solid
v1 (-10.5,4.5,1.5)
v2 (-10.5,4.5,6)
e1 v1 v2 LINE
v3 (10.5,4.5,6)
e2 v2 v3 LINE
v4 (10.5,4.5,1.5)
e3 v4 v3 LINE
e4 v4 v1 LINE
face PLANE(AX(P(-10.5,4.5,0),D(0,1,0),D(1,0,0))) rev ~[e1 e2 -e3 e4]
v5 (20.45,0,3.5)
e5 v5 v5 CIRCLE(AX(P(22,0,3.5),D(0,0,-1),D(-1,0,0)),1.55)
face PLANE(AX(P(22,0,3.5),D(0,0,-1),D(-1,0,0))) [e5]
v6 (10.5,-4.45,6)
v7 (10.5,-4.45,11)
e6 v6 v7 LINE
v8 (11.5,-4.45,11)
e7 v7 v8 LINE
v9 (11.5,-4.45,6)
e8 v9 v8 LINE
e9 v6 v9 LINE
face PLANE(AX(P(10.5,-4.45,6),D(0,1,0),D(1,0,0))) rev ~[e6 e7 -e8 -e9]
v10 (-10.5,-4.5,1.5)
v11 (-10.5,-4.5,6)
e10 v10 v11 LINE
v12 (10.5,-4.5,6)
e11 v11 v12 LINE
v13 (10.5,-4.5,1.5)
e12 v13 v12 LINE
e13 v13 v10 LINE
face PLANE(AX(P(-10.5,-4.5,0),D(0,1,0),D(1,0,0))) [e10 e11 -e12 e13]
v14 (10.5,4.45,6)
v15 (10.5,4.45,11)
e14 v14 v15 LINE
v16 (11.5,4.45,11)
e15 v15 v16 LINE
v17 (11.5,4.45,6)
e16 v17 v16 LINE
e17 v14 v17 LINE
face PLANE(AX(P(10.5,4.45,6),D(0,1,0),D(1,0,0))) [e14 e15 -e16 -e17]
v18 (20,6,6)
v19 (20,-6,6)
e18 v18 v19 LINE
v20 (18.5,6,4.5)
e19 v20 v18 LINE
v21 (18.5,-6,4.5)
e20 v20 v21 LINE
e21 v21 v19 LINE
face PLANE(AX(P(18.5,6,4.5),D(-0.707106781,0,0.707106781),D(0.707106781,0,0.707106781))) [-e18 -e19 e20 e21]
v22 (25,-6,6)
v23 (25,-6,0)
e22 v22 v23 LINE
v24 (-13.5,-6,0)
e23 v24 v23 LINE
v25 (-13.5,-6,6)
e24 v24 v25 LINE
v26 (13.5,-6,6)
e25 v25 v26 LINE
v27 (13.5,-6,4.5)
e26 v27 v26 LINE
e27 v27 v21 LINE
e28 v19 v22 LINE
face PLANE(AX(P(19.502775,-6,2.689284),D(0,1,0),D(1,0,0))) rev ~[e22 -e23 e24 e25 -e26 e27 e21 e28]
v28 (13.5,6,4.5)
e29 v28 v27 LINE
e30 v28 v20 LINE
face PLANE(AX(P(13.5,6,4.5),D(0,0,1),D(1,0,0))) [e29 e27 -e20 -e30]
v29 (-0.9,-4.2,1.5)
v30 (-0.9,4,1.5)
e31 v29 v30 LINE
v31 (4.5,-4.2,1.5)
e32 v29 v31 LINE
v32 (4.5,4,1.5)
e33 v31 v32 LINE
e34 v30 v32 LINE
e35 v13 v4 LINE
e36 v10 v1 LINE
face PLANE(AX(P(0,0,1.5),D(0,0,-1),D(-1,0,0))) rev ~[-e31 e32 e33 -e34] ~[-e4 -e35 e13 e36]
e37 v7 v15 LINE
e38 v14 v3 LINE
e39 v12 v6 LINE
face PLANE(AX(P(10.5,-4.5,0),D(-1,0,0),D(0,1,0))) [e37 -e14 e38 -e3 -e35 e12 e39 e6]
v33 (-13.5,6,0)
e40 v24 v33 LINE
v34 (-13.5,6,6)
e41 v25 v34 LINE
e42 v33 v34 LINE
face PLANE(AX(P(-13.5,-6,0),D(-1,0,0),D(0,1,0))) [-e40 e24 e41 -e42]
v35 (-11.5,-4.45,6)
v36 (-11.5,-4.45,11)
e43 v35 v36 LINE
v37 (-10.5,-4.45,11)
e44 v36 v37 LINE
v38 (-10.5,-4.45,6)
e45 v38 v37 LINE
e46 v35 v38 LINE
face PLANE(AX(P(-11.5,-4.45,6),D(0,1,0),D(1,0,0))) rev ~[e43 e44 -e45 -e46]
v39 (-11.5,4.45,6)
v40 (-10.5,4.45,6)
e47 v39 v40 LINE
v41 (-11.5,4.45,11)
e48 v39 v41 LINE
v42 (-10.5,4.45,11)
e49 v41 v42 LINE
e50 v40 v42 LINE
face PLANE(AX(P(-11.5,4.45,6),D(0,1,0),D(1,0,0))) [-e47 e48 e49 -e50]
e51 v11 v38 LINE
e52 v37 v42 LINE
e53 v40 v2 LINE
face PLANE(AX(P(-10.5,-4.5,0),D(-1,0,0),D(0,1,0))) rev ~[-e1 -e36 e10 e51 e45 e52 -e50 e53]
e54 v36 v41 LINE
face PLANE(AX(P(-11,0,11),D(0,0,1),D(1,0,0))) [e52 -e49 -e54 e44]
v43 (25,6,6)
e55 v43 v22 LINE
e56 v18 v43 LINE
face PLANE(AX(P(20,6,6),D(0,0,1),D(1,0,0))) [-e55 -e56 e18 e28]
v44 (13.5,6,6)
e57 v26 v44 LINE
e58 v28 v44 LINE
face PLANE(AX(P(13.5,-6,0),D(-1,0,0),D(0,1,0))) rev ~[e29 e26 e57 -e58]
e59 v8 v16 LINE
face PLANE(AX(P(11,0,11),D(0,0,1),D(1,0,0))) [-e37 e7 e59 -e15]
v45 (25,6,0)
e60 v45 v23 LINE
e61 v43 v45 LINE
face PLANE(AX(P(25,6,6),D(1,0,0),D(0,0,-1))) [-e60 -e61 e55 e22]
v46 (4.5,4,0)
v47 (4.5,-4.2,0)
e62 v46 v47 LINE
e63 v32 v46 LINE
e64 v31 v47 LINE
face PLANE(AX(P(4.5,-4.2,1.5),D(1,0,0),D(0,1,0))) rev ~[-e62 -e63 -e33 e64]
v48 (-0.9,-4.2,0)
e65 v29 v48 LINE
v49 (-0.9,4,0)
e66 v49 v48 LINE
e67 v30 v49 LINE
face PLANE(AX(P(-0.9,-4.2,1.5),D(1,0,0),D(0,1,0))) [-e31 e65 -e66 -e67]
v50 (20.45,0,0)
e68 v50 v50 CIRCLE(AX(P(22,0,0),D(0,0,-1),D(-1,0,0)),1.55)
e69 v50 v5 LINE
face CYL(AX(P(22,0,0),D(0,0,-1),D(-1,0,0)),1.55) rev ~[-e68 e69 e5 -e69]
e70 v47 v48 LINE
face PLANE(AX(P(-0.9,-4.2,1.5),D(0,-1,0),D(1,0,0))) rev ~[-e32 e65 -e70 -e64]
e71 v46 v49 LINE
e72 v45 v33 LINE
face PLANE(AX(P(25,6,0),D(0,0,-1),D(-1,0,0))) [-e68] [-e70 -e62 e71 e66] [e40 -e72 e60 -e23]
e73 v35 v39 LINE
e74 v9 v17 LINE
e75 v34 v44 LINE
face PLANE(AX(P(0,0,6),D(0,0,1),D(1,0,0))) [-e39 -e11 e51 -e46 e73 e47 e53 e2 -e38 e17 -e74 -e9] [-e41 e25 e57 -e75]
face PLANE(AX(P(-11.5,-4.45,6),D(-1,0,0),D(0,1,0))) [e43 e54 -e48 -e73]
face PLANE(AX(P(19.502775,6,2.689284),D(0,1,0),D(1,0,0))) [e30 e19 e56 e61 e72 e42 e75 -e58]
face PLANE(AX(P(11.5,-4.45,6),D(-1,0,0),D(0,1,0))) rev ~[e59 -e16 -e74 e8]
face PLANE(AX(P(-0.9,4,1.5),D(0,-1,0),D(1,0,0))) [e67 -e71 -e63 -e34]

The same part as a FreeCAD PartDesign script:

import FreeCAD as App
import Part
import Sketcher

V = App.Vector
Q = App.Units.Quantity

doc = App.newDocument("Part")
body = doc.addObject("PartDesign::Body", "Body")

# Sketch on XY plane
sketch1 = body.newObject("Sketcher::SketchObject", "Sketch")
sketch1.AttachmentSupport = (doc.getObject("XY_Plane"), [""])
sketch1.MapMode = "FlatFace"
sketch1.addGeometry([
    Part.LineSegment(V(-14, 6, 0), V(-14, -6, 0)),  # 0
    Part.LineSegment(V(-14, -6, 0), V(14, -6, 0)),  # 1
    Part.LineSegment(V(14, -6, 0), V(14, 6, 0)),  # 2
    Part.LineSegment(V(14, 6, 0), V(-14, 6, 0)),  # 3
    Part.LineSegment(V(10, -4, 0), V(-10, -4, 0)),  # 4
    Part.LineSegment(V(-10, -4, 0), V(-10, 4, 0)),  # 5
    Part.LineSegment(V(-10, 4, 0), V(10, 4, 0)),  # 6
    Part.LineSegment(V(10, 4, 0), V(10, -4, 0)),  # 7
], False)
sketch1.addConstraint([
    Sketcher.Constraint("Coincident", 0, 2, 1, 1),
    Sketcher.Constraint("Coincident", 1, 2, 2, 1),
    Sketcher.Constraint("Coincident", 2, 2, 3, 1),
    Sketcher.Constraint("Coincident", 3, 2, 0, 1),
    Sketcher.Constraint("Coincident", 4, 2, 5, 1),
    Sketcher.Constraint("Coincident", 5, 2, 6, 1),
    Sketcher.Constraint("Coincident", 6, 2, 7, 1),
    Sketcher.Constraint("Coincident", 7, 2, 4, 1),
    Sketcher.Constraint("Vertical", 0),
    Sketcher.Constraint("Horizontal", 1),
    Sketcher.Constraint("Vertical", 2),
    Sketcher.Constraint("Horizontal", 3),
    Sketcher.Constraint("Horizontal", 4),
    Sketcher.Constraint("Vertical", 5),
    Sketcher.Constraint("Horizontal", 6),
    Sketcher.Constraint("Vertical", 7),
    Sketcher.Constraint("Symmetric", 0, 2, 2, 2, -1, 1),
    Sketcher.Constraint("Symmetric", 4, 2, 6, 2, -1, 1),
    Sketcher.Constraint("DistanceX", 1, 1, 1, 2, 27.0),
    Sketcher.Constraint("DistanceX", 4, 2, 4, 1, 21.0),
    Sketcher.Constraint("DistanceY", 0, 2, 0, 1, 12.0),
    Sketcher.Constraint("DistanceY", 5, 1, 5, 2, 9.0),
])
pad1 = body.newObject("PartDesign::Pad", "Pad")
pad1.Profile = sketch1
pad1.Length = 6

# Sketch on XY plane
sketch2 = body.newObject("Sketcher::SketchObject", "Sketch001")
sketch2.AttachmentSupport = (doc.getObject("XY_Plane"), [""])
sketch2.MapMode = "FlatFace"
sketch2.addGeometry([
    Part.LineSegment(V(10, 4, 0), V(10, -4, 0)),
    Part.LineSegment(V(10, -4, 0), V(-10, -4, 0)),
    Part.LineSegment(V(-10, -4, 0), V(-10, 4, 0)),
    Part.LineSegment(V(-10, 4, 0), V(10, 4, 0)),
], False)
sketch2.addConstraint([
    Sketcher.Constraint("Coincident", 0, 2, 1, 1),
    Sketcher.Constraint("Coincident", 1, 2, 2, 1),
    Sketcher.Constraint("Coincident", 2, 2, 3, 1),
    Sketcher.Constraint("Coincident", 3, 2, 0, 1),
    Sketcher.Constraint("Vertical", 0),
    Sketcher.Constraint("Horizontal", 1),
    Sketcher.Constraint("Vertical", 2),
    Sketcher.Constraint("Horizontal", 3),
    Sketcher.Constraint("Symmetric", 0, 2, 2, 2, -1, 1),
    Sketcher.Constraint("DistanceX", 1, 2, 1, 1, 21.0),
    Sketcher.Constraint("DistanceY", 0, 2, 0, 1, 9.0),
])
pad2 = body.newObject("PartDesign::Pad", "Pad001")
pad2.Profile = sketch2
pad2.Length = 1.5

# Sketch on XY plane
sketch3 = body.newObject("Sketcher::SketchObject", "Sketch002")
sketch3.AttachmentSupport = (doc.getObject("XY_Plane"), [""])
sketch3.MapMode = "FlatFace"
sketch3.AttachmentOffset = App.Placement(V(0, 0, 1.5), App.Rotation())
sketch3.addGeometry([
    Part.LineSegment(V(-1, 4, 0), V(-1, -4, 0)),
    Part.LineSegment(V(-1, -4, 0), V(4, -4, 0)),
    Part.LineSegment(V(4, -4, 0), V(4, 4, 0)),
    Part.LineSegment(V(4, 4, 0), V(-1, 4, 0)),
], False)
sketch3.addConstraint([
    Sketcher.Constraint("Coincident", 0, 2, 1, 1),
    Sketcher.Constraint("Coincident", 1, 2, 2, 1),
    Sketcher.Constraint("Coincident", 2, 2, 3, 1),
    Sketcher.Constraint("Coincident", 3, 2, 0, 1),
    Sketcher.Constraint("Vertical", 0),
    Sketcher.Constraint("Horizontal", 1),
    Sketcher.Constraint("Vertical", 2),
    Sketcher.Constraint("Horizontal", 3),
    Sketcher.Constraint("DistanceX", 1, 1, 1, 2, 5.4),
    Sketcher.Constraint("DistanceY", 0, 2, 0, 1, 8.2),
    Sketcher.Constraint("DistanceY", -1, 1, 2, 2, 4.0),
    Sketcher.Constraint("DistanceX", 0, 2, -1, 1, 0.9),
])
pocket1 = body.newObject("PartDesign::Pocket", "Pocket")
pocket1.Profile = sketch3
pocket1.Type = "ThroughAll"

# Sketch on XY plane
sketch4 = body.newObject("Sketcher::SketchObject", "Sketch003")
sketch4.AttachmentSupport = (doc.getObject("XY_Plane"), [""])
sketch4.MapMode = "FlatFace"
sketch4.AttachmentOffset = App.Placement(V(0, 0, 6), App.Rotation())
sketch4.addGeometry([
    Part.LineSegment(V(-11.5, 4.5, 0), V(-11.5, -4.5, 0)),  # 0
    Part.LineSegment(V(-11.5, -4.5, 0), V(-10.5, -4.5, 0)),  # 1
    Part.LineSegment(V(-10.5, -4.5, 0), V(-10.5, 4.5, 0)),  # 2
    Part.LineSegment(V(-10.5, 4.5, 0), V(-11.5, 4.5, 0)),  # 3
    Part.LineSegment(V(10.5, 4.5, 0), V(10.5, -4.5, 0)),  # 4
    Part.LineSegment(V(10.5, -4.5, 0), V(11.5, -4.5, 0)),  # 5
    Part.LineSegment(V(11.5, -4.5, 0), V(11.5, 4.5, 0)),  # 6
    Part.LineSegment(V(11.5, 4.5, 0), V(10.5, 4.5, 0)),  # 7
], False)
sketch4.addConstraint([
    Sketcher.Constraint("Coincident", 0, 2, 1, 1),
    Sketcher.Constraint("Coincident", 1, 2, 2, 1),
    Sketcher.Constraint("Coincident", 2, 2, 3, 1),
    Sketcher.Constraint("Coincident", 3, 2, 0, 1),
    Sketcher.Constraint("Coincident", 4, 2, 5, 1),
    Sketcher.Constraint("Coincident", 5, 2, 6, 1),
    Sketcher.Constraint("Coincident", 6, 2, 7, 1),
    Sketcher.Constraint("Coincident", 7, 2, 4, 1),
    Sketcher.Constraint("Vertical", 0),
    Sketcher.Constraint("Horizontal", 1),
    Sketcher.Constraint("Vertical", 2),
    Sketcher.Constraint("Horizontal", 3),
    Sketcher.Constraint("Vertical", 4),
    Sketcher.Constraint("Horizontal", 5),
    Sketcher.Constraint("Vertical", 6),
    Sketcher.Constraint("Horizontal", 7),
    Sketcher.Constraint("Symmetric", 2, 2, 4, 2, -1, 1),
    Sketcher.Constraint("Symmetric", 0, 2, 6, 2, -1, 1),
    Sketcher.Constraint("Horizontal", 1, 2, 4, 2),
    Sketcher.Constraint("DistanceX", 1, 1, 1, 2, 1.0),
    Sketcher.Constraint("DistanceY", 0, 2, 0, 1, 8.9),
    Sketcher.Constraint("DistanceX", 1, 2, 4, 2, 21.0),
])
pad3 = body.newObject("PartDesign::Pad", "Pad002")
pad3.Profile = sketch4
pad3.Length = 5

# Sketch on XZ plane
sketch5 = body.newObject("Sketcher::SketchObject", "Sketch004")
sketch5.AttachmentSupport = (doc.getObject("XZ_Plane"), [""])
sketch5.MapMode = "FlatFace"
sketch5.AttachmentOffset = App.Placement(V(0, 0, -6), App.Rotation())
sketch5.addGeometry([
    Part.LineSegment(V(13.5, 4.5, 0), V(18.5, 4.5, 0)),  # 0
    Part.LineSegment(V(18.5, 4.5, 0), V(20, 6, 0)),  # 1
    Part.LineSegment(V(20, 6, 0), V(25, 6, 0)),  # 2
    Part.LineSegment(V(25, 6, 0), V(25, 0, 0)),  # 3
    Part.LineSegment(V(25, 0, 0), V(13.5, 0, 0)),  # 4
    Part.LineSegment(V(13.5, 0, 0), V(13.5, 4.5, 0)),  # 5
], False)
sketch5.addConstraint([
    Sketcher.Constraint("Coincident", 0, 2, 1, 1),
    Sketcher.Constraint("Coincident", 1, 2, 2, 1),
    Sketcher.Constraint("Coincident", 2, 2, 3, 1),
    Sketcher.Constraint("Coincident", 3, 2, 4, 1),
    Sketcher.Constraint("Coincident", 4, 2, 5, 1),
    Sketcher.Constraint("Coincident", 5, 2, 0, 1),
    Sketcher.Constraint("Horizontal", 0),
    Sketcher.Constraint("Horizontal", 2),
    Sketcher.Constraint("Vertical", 3),
    Sketcher.Constraint("Horizontal", 4),
    Sketcher.Constraint("Vertical", 5),
    Sketcher.Constraint("PointOnObject", 3, 2, -1),
    Sketcher.Constraint("Equal", 0, 2),
    Sketcher.Constraint("DistanceX", 0, 1, 0, 2, 5.0),
    Sketcher.Constraint("DistanceY", 3, 2, 3, 1, 6.0),
    Sketcher.Constraint("Angle", 1, Q("45 deg")),
    Sketcher.Constraint("DistanceX", 4, 2, 4, 1, 11.5),
    Sketcher.Constraint("DistanceX", -1, 1, 1, 2, 20.0),
])
pad4 = body.newObject("PartDesign::Pad", "Pad003")
pad4.Profile = sketch5
pad4.Length = 12

# Sketch on XY plane
sketch6 = body.newObject("Sketcher::SketchObject", "Sketch005")
sketch6.AttachmentSupport = (doc.getObject("XY_Plane"), [""])
sketch6.MapMode = "FlatFace"
sketch6.addGeometry(Part.Circle(V(22, 0, 0), V(0, 0, 1), 1.6), False)
sketch6.addConstraint([
    Sketcher.Constraint("PointOnObject", 0, 3, -1),
    Sketcher.Constraint("Diameter", 0, 3.1),
    Sketcher.Constraint("DistanceX", -1, 1, 0, 3, 22.0),
])
pocket2 = body.newObject("PartDesign::Pocket", "Pocket001")
pocket2.Profile = sketch6
pocket2.Length = 3.5
pocket2.Reversed = True

doc.recompute()
